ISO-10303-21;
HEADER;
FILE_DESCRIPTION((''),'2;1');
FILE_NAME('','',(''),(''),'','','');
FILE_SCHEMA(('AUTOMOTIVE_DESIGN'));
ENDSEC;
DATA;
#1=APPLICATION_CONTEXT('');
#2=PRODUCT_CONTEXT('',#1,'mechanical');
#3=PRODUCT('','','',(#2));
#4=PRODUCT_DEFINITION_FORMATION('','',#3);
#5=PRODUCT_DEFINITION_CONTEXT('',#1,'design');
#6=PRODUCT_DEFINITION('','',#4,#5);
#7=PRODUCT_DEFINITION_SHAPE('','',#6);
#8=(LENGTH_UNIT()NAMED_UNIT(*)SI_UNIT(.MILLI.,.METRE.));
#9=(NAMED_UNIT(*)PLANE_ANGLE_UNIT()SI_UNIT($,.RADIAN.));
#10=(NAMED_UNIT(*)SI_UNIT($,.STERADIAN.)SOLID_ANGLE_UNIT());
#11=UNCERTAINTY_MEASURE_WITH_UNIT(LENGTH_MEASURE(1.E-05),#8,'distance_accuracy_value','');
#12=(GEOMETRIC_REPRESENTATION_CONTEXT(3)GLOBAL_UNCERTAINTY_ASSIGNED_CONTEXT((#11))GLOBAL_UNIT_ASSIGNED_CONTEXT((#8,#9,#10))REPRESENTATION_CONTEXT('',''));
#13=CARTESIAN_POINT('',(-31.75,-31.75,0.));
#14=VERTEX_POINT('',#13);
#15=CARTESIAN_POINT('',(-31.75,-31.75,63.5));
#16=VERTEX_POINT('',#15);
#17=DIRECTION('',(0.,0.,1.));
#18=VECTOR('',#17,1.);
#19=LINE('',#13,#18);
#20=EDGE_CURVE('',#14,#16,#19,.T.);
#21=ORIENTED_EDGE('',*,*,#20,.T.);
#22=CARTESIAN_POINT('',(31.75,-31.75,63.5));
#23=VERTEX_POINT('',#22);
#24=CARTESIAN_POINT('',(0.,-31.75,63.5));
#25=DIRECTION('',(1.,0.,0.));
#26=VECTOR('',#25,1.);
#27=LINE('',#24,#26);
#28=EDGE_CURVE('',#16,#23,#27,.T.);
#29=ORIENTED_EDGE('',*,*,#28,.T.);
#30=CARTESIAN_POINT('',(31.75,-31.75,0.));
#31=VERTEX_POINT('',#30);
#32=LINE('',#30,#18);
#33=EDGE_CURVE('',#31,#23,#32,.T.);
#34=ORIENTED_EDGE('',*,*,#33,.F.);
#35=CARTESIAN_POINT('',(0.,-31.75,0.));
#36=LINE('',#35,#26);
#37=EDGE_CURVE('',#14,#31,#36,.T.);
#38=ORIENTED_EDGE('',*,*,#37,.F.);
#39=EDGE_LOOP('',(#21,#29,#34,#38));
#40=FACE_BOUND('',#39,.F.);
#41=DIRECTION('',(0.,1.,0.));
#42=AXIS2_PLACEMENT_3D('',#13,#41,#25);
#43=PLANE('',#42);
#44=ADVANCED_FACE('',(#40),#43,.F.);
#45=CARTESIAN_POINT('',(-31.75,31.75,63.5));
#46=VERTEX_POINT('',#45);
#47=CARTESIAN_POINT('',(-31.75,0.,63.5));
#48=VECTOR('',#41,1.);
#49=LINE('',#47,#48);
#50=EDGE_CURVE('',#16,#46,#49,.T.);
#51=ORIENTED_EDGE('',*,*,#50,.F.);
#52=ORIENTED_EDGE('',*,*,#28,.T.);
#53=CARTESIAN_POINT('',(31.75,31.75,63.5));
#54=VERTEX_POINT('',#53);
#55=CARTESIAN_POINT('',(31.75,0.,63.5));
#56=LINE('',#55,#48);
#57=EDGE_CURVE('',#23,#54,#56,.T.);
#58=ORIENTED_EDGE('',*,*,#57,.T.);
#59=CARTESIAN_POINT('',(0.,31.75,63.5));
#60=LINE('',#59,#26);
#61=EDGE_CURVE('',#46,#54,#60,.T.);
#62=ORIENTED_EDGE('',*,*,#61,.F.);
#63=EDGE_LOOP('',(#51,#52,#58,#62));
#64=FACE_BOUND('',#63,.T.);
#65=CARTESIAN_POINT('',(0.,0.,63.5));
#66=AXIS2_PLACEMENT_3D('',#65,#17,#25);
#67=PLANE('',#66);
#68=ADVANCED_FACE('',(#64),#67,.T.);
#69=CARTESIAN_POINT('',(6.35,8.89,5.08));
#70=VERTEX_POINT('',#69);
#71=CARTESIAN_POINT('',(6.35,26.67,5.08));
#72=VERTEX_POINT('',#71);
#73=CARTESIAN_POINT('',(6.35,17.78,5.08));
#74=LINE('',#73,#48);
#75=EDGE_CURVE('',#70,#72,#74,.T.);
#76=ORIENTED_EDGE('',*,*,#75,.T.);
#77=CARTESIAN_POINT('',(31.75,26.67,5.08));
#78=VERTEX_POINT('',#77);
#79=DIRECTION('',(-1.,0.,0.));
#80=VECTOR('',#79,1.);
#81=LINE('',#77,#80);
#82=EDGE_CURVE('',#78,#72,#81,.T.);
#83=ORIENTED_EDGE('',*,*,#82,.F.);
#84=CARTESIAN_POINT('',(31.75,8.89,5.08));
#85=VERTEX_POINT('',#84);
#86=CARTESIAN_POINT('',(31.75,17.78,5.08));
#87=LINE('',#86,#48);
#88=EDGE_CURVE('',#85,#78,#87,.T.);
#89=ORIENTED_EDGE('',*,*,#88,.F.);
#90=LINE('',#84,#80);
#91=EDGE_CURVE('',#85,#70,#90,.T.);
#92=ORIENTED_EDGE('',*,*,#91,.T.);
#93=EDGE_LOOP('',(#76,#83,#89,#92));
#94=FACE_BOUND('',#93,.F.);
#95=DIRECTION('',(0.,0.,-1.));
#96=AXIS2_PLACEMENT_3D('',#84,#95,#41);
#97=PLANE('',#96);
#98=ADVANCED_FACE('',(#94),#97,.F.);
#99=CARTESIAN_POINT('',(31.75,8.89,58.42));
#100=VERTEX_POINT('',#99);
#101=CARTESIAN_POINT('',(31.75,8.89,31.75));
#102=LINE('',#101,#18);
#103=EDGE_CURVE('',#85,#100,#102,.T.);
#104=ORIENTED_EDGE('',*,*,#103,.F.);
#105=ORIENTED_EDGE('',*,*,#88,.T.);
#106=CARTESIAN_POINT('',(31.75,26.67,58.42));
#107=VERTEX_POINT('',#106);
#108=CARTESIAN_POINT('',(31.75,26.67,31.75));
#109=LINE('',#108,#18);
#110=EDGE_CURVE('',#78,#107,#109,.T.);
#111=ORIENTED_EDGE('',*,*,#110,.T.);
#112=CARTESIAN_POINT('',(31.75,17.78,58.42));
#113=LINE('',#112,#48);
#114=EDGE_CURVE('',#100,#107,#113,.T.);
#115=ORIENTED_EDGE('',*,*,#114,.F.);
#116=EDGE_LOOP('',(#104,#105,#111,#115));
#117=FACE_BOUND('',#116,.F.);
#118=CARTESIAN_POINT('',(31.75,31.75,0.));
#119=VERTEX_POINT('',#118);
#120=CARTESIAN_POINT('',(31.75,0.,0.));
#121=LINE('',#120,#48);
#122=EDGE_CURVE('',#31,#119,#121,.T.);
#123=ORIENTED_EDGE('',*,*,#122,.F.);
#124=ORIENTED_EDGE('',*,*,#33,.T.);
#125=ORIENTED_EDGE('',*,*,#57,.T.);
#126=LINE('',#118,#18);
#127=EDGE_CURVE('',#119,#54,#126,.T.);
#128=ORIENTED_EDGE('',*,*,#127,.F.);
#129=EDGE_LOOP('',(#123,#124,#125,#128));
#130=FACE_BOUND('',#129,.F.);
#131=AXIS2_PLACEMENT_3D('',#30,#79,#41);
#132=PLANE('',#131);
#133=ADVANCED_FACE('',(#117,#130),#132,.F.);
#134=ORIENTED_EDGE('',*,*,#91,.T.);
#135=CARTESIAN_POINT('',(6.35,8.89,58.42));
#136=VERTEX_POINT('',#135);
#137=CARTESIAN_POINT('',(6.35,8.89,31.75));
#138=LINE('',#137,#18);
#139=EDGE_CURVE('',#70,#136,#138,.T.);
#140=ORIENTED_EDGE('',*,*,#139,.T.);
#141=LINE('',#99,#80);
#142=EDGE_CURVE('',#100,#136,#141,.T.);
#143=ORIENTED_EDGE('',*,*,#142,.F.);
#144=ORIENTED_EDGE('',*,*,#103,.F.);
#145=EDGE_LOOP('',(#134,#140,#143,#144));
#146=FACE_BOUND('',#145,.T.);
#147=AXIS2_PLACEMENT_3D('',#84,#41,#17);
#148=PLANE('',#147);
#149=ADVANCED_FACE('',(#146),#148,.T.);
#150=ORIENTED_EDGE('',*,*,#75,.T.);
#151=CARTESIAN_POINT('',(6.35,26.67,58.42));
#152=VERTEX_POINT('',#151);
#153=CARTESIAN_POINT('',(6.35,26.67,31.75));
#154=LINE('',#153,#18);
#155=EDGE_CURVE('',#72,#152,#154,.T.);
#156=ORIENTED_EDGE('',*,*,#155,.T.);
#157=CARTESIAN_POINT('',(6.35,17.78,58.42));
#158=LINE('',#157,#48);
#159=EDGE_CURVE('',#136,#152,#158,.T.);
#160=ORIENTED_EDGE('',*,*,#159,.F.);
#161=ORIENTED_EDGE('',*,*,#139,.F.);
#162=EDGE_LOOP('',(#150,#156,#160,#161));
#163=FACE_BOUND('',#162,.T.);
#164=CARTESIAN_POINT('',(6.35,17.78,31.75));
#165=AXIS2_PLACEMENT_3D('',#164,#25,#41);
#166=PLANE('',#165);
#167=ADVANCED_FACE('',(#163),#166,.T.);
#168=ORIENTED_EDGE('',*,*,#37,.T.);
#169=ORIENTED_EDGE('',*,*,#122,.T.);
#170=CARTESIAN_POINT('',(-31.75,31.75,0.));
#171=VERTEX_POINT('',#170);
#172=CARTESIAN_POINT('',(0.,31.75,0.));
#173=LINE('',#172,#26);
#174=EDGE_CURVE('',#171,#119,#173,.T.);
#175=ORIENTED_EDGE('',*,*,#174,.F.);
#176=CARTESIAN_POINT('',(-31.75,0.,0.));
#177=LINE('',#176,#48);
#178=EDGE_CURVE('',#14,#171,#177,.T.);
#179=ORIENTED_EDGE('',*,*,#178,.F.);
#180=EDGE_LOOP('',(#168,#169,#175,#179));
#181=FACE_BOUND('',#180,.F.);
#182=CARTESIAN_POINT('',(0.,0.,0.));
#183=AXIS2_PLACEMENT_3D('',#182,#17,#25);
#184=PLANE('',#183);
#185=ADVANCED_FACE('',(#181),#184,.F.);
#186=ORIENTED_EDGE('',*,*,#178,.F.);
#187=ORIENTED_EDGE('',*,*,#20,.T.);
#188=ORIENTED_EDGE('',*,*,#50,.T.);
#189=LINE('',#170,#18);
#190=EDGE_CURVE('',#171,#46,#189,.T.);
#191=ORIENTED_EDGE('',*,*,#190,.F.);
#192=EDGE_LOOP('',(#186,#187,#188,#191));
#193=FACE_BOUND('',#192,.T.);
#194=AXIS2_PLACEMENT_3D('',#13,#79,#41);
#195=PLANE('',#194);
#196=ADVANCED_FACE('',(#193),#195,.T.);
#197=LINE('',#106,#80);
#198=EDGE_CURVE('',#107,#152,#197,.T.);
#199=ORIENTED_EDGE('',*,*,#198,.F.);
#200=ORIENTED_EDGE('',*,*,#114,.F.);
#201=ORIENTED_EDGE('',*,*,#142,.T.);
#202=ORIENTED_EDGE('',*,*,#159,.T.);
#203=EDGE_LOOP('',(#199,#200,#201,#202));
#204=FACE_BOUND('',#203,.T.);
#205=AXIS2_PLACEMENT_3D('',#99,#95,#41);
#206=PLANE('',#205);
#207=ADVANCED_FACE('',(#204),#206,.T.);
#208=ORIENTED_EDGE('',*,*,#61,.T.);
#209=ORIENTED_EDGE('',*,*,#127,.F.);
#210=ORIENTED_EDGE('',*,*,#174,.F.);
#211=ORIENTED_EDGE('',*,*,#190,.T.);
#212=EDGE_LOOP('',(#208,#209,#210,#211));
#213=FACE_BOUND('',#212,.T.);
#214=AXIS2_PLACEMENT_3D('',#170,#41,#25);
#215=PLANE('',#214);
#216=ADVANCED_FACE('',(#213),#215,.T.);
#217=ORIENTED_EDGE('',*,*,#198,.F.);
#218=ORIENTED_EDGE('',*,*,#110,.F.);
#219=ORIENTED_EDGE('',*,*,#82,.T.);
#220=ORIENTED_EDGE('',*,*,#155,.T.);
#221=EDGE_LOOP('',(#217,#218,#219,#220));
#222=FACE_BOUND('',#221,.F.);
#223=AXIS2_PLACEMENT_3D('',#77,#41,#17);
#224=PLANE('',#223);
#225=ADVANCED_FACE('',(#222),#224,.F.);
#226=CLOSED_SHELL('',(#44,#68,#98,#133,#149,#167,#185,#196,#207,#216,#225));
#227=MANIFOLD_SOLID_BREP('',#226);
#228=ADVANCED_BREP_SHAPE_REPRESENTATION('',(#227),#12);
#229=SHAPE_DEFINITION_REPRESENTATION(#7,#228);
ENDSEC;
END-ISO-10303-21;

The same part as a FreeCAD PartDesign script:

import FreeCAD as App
import Part
import Sketcher

V = App.Vector
Q = App.Units.Quantity

doc = App.newDocument("Part")
params = doc.addObject("Spreadsheet::Sheet", "Params")
for row, (alias, value) in enumerate([
    ("sketch1_width", "2.5 in"),
    ("pad1_length", "2.5 in"),
    ("sketch2_width", "0.7 in"),
    ("sketch2_height", "2.1 in"),
    ("pocket1_length", "1 in"),
], start=1):
    params.set(f"A{row}", alias)
    params.set(f"B{row}", "=" + value)
    params.setAlias(f"B{row}", alias)

body = doc.addObject("PartDesign::Body", "Body")

# Sketch on XY plane
sketch1 = body.newObject("Sketcher::SketchObject", "Sketch")
sketch1.AttachmentSupport = (doc.getObject("XY_Plane"), [""])
sketch1.MapMode = "FlatFace"
sketch1.addGeometry(Part.LineSegment(V(-32, 32, 0), V(-32, -32, 0)), False)
sketch1.addGeometry(Part.LineSegment(V(-32, -32, 0), V(32, -32, 0)), False)
sketch1.addGeometry(Part.LineSegment(V(32, -32, 0), V(32, 32, 0)), False)
sketch1.addGeometry(Part.LineSegment(V(32, 32, 0), V(-32, 32, 0)), False)
sketch1.addConstraint(Sketcher.Constraint("Coincident", 0, 2, 1, 1))
sketch1.addConstraint(Sketcher.Constraint("Coincident", 1, 2, 2, 1))
sketch1.addConstraint(Sketcher.Constraint("Coincident", 2, 2, 3, 1))
sketch1.addConstraint(Sketcher.Constraint("Coincident", 3, 2, 0, 1))
sketch1.addConstraint(Sketcher.Constraint("Vertical", 0))
sketch1.addConstraint(Sketcher.Constraint("Horizontal", 1))
sketch1.addConstraint(Sketcher.Constraint("Vertical", 2))
sketch1.addConstraint(Sketcher.Constraint("Horizontal", 3))
sketch1.addConstraint(Sketcher.Constraint("Symmetric", 0, 2, 2, 2, -1, 1))
sketch1.addConstraint(Sketcher.Constraint("Equal", 3, 0))
sketch1.addConstraint(Sketcher.Constraint("DistanceX", 1, 1, 1, 2, Q("2.5 in")))
sketch1.setExpression("Constraints[10]", "Params.sketch1_width")
pad1 = body.newObject("PartDesign::Pad", "Pad")
pad1.Profile = sketch1
pad1.setExpression("Length", "Params.pad1_length")

# Sketch on YZ plane
sketch2 = body.newObject("Sketcher::SketchObject", "Sketch001")
sketch2.AttachmentSupport = (doc.getObject("YZ_Plane"), [""])
sketch2.MapMode = "FlatFace"
sketch2.AttachmentOffset = App.Placement(V(0, 0, 1.25 * 25.4), App.Rotation())
sketch2.addGeometry(Part.LineSegment(V(9, 58, 0), V(9, 5, 0)), False)
sketch2.addGeometry(Part.LineSegment(V(9, 5, 0), V(27, 5, 0)), False)
sketch2.addGeometry(Part.LineSegment(V(27, 5, 0), V(27, 58, 0)), False)
sketch2.addGeometry(Part.LineSegment(V(27, 58, 0), V(9, 58, 0)), False)
sketch2.addConstraint(Sketcher.Constraint("Coincident", 0, 2, 1, 1))
sketch2.addConstraint(Sketcher.Constraint("Coincident", 1, 2, 2, 1))
sketch2.addConstraint(Sketcher.Constraint("Coincident", 2, 2, 3, 1))
sketch2.addConstraint(Sketcher.Constraint("Coincident", 3, 2, 0, 1))
sketch2.addConstraint(Sketcher.Constraint("Vertical", 0))
sketch2.addConstraint(Sketcher.Constraint("Horizontal", 1))
sketch2.addConstraint(Sketcher.Constraint("Vertical", 2))
sketch2.addConstraint(Sketcher.Constraint("Horizontal", 3))
sketch2.addConstraint(Sketcher.Constraint("DistanceX", 1, 1, 1, 2, Q("0.7 in")))
sketch2.addConstraint(Sketcher.Constraint("DistanceY", 0, 2, 0, 1, Q("2.1 in")))
sketch2.addConstraint(Sketcher.Constraint("DistanceY", -1, 1, 0, 2, Q("0.2 in")))
sketch2.addConstraint(Sketcher.Constraint("DistanceX", -1, 1, 0, 2, Q("0.35 in")))
sketch2.setExpression("Constraints[8]", "Params.sketch2_width")
sketch2.setExpression("Constraints[9]", "Params.sketch2_height")
pocket1 = body.newObject("PartDesign::Pocket", "Pocket")
pocket1.Profile = sketch2
pocket1.setExpression("Length", "Params.pocket1_length")

doc.recompute()
